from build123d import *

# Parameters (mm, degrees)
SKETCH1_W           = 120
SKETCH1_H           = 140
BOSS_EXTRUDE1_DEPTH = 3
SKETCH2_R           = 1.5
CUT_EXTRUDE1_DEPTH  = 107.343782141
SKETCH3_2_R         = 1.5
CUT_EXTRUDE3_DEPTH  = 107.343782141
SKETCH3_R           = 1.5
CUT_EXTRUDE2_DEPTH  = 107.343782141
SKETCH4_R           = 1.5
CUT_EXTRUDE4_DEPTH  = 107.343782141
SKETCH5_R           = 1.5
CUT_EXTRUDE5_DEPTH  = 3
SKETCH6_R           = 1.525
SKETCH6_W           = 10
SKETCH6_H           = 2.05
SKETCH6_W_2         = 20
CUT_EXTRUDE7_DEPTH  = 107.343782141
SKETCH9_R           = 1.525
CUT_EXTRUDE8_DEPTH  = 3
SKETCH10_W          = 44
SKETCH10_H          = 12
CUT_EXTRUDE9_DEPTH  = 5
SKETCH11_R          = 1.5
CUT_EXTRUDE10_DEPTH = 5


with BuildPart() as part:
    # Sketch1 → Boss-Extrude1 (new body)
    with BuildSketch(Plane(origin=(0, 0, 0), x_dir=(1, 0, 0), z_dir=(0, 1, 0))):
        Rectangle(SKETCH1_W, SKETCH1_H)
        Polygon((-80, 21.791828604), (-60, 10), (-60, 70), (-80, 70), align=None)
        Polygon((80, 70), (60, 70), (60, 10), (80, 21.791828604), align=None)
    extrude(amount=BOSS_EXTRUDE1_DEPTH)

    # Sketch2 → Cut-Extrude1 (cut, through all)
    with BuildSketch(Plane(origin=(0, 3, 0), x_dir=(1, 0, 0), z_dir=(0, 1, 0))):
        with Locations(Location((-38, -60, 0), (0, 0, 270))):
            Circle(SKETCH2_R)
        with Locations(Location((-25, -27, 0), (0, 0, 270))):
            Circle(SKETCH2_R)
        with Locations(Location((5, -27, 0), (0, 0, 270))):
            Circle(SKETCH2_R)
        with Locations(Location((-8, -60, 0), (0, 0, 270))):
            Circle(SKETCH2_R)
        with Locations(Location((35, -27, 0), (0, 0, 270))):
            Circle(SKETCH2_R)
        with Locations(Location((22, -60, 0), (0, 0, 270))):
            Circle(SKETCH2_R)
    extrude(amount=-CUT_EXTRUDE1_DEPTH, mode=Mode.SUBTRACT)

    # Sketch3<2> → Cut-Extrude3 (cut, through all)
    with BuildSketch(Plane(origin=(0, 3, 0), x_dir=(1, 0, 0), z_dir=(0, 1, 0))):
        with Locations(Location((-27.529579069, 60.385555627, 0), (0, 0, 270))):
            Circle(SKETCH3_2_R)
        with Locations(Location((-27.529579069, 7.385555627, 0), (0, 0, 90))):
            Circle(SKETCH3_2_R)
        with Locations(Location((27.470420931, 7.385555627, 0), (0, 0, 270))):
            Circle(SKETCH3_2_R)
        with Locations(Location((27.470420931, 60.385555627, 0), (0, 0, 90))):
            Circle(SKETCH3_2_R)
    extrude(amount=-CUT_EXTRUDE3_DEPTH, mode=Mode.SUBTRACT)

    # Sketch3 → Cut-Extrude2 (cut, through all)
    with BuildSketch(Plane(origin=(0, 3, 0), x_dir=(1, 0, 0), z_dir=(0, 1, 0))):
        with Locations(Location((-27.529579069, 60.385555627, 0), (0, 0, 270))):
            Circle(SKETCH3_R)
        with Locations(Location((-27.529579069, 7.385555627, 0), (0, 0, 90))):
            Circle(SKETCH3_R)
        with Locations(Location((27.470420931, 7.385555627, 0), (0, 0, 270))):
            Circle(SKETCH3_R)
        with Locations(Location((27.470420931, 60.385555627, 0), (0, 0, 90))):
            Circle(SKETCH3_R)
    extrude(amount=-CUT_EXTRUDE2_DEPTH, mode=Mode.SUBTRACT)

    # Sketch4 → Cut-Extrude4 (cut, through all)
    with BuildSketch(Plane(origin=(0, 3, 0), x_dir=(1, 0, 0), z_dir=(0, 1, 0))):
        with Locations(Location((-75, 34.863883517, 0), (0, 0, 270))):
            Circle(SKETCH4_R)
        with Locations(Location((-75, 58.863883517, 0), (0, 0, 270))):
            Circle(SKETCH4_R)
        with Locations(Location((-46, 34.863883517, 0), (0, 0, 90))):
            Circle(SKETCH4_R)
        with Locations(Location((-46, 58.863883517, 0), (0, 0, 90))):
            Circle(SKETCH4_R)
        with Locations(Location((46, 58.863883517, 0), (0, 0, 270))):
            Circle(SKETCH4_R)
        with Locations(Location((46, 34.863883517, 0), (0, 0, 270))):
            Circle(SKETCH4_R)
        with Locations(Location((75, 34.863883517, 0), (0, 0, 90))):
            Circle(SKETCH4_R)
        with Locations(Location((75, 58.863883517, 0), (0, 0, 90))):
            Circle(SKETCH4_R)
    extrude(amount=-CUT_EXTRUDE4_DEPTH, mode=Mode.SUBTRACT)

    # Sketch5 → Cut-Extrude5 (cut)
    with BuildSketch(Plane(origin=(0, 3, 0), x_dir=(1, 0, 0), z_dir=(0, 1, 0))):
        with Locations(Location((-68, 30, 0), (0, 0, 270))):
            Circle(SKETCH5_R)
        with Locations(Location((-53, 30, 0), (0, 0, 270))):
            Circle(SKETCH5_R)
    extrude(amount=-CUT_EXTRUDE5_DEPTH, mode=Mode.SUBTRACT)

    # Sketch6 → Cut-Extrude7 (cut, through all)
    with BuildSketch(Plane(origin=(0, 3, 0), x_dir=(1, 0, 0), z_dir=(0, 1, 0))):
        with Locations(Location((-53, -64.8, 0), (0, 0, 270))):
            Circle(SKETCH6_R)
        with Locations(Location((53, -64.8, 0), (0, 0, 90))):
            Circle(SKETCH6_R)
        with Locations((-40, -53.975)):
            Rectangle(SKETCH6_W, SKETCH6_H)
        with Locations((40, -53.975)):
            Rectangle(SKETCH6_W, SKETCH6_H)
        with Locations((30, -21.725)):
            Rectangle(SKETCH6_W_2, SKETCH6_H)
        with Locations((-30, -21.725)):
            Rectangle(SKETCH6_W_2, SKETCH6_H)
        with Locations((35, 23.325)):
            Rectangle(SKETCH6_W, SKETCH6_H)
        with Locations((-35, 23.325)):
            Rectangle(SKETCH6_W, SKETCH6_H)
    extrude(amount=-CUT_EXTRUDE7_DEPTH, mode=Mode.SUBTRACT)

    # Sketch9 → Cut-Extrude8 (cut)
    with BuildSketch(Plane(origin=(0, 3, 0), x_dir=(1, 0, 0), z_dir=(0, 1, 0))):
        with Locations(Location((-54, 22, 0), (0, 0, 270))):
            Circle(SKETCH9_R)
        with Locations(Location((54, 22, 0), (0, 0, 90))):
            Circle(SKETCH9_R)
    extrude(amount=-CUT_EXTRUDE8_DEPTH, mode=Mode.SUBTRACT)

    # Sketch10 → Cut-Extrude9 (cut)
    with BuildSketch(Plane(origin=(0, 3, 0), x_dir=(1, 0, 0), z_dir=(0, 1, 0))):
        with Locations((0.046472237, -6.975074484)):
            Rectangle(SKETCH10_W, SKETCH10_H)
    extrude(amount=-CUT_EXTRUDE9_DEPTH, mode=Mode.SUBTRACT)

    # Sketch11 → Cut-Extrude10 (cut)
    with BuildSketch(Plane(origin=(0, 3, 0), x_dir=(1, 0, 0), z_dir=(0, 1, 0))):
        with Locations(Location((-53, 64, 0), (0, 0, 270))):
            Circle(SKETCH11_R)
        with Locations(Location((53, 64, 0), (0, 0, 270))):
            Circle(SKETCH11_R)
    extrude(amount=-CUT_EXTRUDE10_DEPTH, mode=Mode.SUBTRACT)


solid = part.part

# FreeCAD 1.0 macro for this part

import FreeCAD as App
import Part
import Sketcher
Q = App.Units.Quantity

doc = App.newDocument("Part")
body = doc.addObject("PartDesign::Body", "Body")

sketch1 = doc.addObject("Sketcher::SketchObject", "Sketch")
body.addObject(sketch1)
sketch1.AttachmentSupport = (doc.XZ_Plane, [""])
sketch1.MapMode = "FlatFace"
sketch1.addGeometry([
    Part.LineSegment(App.Vector(-60, -10, 0), App.Vector(-60, 70, 0)),
    Part.LineSegment(App.Vector(-60, 70, 0), App.Vector(60, 70, 0)),
    Part.LineSegment(App.Vector(60, 70, 0), App.Vector(60, -10, 0)),
    Part.LineSegment(App.Vector(60, -10, 0), App.Vector(80, -22, 0)),
    Part.LineSegment(App.Vector(80, -22, 0), App.Vector(80, -70, 0)),
    Part.LineSegment(App.Vector(80, -70, 0), App.Vector(-80, -70, 0)),
    Part.LineSegment(App.Vector(-80, -70, 0), App.Vector(-80, -22, 0)),
    Part.LineSegment(App.Vector(-80, -22, 0), App.Vector(-60, -10, 0)),
], False)
sketch1.addConstraint([
    Sketcher.Constraint("Coincident", 0, 2, 1, 1),
    Sketcher.Constraint("Coincident", 1, 2, 2, 1),
    Sketcher.Constraint("Coincident", 2, 2, 3, 1),
    Sketcher.Constraint("Coincident", 3, 2, 4, 1),
    Sketcher.Constraint("Coincident", 4, 2, 5, 1),
    Sketcher.Constraint("Coincident", 5, 2, 6, 1),
    Sketcher.Constraint("Coincident", 6, 2, 7, 1),
    Sketcher.Constraint("Coincident", 7, 2, 0, 1),
    Sketcher.Constraint("Vertical", 0),
    Sketcher.Constraint("Horizontal", 1),
    Sketcher.Constraint("Vertical", 2),
    Sketcher.Constraint("Vertical", 4),
    Sketcher.Constraint("Horizontal", 5),
    Sketcher.Constraint("Vertical", 6),
    Sketcher.Constraint("Symmetric", 3, 2, 6, 2, -2),
    Sketcher.Constraint("Symmetric", 2, 2, 7, 2, -2),
    Sketcher.Constraint("DistanceX", 1, 1, 1, 2, Q("120 mm")),
    Sketcher.Constraint("DistanceX", 5, 2, 5, 1, Q("160 mm")),
    Sketcher.Constraint("DistanceY", 0, 1, 0, 2, Q("80 mm")),
    Sketcher.Constraint("DistanceY", -1, 1, 0, 2, Q("70 mm")),
    Sketcher.Constraint("DistanceY", 4, 2, -1, 1, Q("70 mm")),
    Sketcher.Constraint("DistanceY", 4, 2, 4, 1, Q("48.208171 mm")),
])
pad1 = doc.addObject("PartDesign::Pad", "Pad")
body.addObject(pad1)
pad1.Profile = sketch1
pad1.Length = 3
pad1.Reversed = True

sketch2 = doc.addObject("Sketcher::SketchObject", "Sketch001")
body.addObject(sketch2)
sketch2.AttachmentSupport = (doc.XZ_Plane, [""])
sketch2.MapMode = "FlatFace"
sketch2.AttachmentOffset = App.Placement(App.Vector(0, 0, -3), App.Rotation())
sketch2.addGeometry([
    Part.Circle(App.Vector(-38, 60, 0), App.Vector(0, 0, 1), 1.5),
    Part.Circle(App.Vector(-25, 27, 0), App.Vector(0, 0, 1), 1.5),
    Part.Circle(App.Vector(5, 27, 0), App.Vector(0, 0, 1), 1.5),
    Part.Circle(App.Vector(-8, 60, 0), App.Vector(0, 0, 1), 1.5),
    Part.Circle(App.Vector(35, 27, 0), App.Vector(0, 0, 1), 1.5),
    Part.Circle(App.Vector(22, 60, 0), App.Vector(0, 0, 1), 1.5),
], False)
sketch2.addConstraint([
    Sketcher.Constraint("Equal", 0, 1),
    Sketcher.Constraint("Equal", 1, 2),
    Sketcher.Constraint("Equal", 2, 3),
    Sketcher.Constraint("Equal", 3, 4),
    Sketcher.Constraint("Equal", 4, 5),
    Sketcher.Constraint("Horizontal", 1, 3, 2, 3),
    Sketcher.Constraint("Horizontal", 0, 3, 3, 3),
    Sketcher.Constraint("Horizontal", 2, 3, 4, 3),
    Sketcher.Constraint("Horizontal", 3, 3, 5, 3),
    Sketcher.Constraint("Diameter", 0, Q("3 mm")),
    Sketcher.Constraint("DistanceX", 0, 3, -1, 1, Q("38 mm")),
    Sketcher.Constraint("DistanceY", -1, 1, 0, 3, Q("60 mm")),
    Sketcher.Constraint("DistanceX", 1, 3, -1, 1, Q("25 mm")),
    Sketcher.Constraint("DistanceY", -1, 1, 1, 3, Q("27 mm")),
    Sketcher.Constraint("DistanceX", -1, 1, 2, 3, Q("5 mm")),
    Sketcher.Constraint("DistanceX", 3, 3, -1, 1, Q("8 mm")),
    Sketcher.Constraint("DistanceX", -1, 1, 4, 3, Q("35 mm")),
    Sketcher.Constraint("DistanceX", -1, 1, 5, 3, Q("22 mm")),
])
pocket1 = doc.addObject("PartDesign::Pocket", "Pocket")
body.addObject(pocket1)
pocket1.Profile = sketch2
pocket1.Type = "ThroughAll"
pocket1.Reversed = True

sketch3 = doc.addObject("Sketcher::SketchObject", "Sketch002")
body.addObject(sketch3)
sketch3.AttachmentSupport = (doc.XZ_Plane, [""])
sketch3.MapMode = "FlatFace"
sketch3.AttachmentOffset = App.Placement(App.Vector(0, 0, -3), App.Rotation())
sketch3.addGeometry([
    Part.Circle(App.Vector(-27.5, -60.4, 0), App.Vector(0, 0, 1), 1.5),
    Part.Circle(App.Vector(-27.5, -7.4, 0), App.Vector(0, 0, 1), 1.5),
    Part.Circle(App.Vector(27.5, -7.4, 0), App.Vector(0, 0, 1), 1.5),
    Part.Circle(App.Vector(27.5, -60.4, 0), App.Vector(0, 0, 1), 1.5),
], False)
sketch3.addConstraint([
    Sketcher.Constraint("Equal", 0, 1),
    Sketcher.Constraint("Equal", 1, 2),
    Sketcher.Constraint("Equal", 2, 3),
    Sketcher.Constraint("Horizontal", 1, 3, 2, 3),
    Sketcher.Constraint("Horizontal", 0, 3, 3, 3),
    Sketcher.Constraint("Vertical", 0, 3, 1, 3),
    Sketcher.Constraint("Vertical", 2, 3, 3, 3),
    Sketcher.Constraint("Diameter", 0, Q("3 mm")),
    Sketcher.Constraint("DistanceY", 0, 3, 1, 3, Q("53 mm")),
    Sketcher.Constraint("DistanceX", 1, 3, 2, 3, Q("55 mm")),
    Sketcher.Constraint("DistanceX", 0, 3, -1, 1, Q("27.529579 mm")),
    Sketcher.Constraint("DistanceY", 0, 3, -1, 1, Q("60.385556 mm")),
])
pocket2 = doc.addObject("PartDesign::Pocket", "Pocket001")
body.addObject(pocket2)
pocket2.Profile = sketch3
pocket2.Type = "ThroughAll"
pocket2.Reversed = True

sketch4 = doc.addObject("Sketcher::SketchObject", "Sketch003")
body.addObject(sketch4)
sketch4.AttachmentSupport = (doc.XZ_Plane, [""])
sketch4.MapMode = "FlatFace"
sketch4.AttachmentOffset = App.Placement(App.Vector(0, 0, -3), App.Rotation())
sketch4.addGeometry([
    Part.Circle(App.Vector(-27.5, -60.4, 0), App.Vector(0, 0, 1), 1.5),
    Part.Circle(App.Vector(-27.5, -7.4, 0), App.Vector(0, 0, 1), 1.5),
    Part.Circle(App.Vector(27.5, -7.4, 0), App.Vector(0, 0, 1), 1.5),
    Part.Circle(App.Vector(27.5, -60.4, 0), App.Vector(0, 0, 1), 1.5),
], False)
sketch4.addConstraint([
    Sketcher.Constraint("Equal", 0, 1),
    Sketcher.Constraint("Equal", 1, 2),
    Sketcher.Constraint("Equal", 2, 3),
    Sketcher.Constraint("Horizontal", 1, 3, 2, 3),
    Sketcher.Constraint("Horizontal", 0, 3, 3, 3),
    Sketcher.Constraint("Vertical", 0, 3, 1, 3),
    Sketcher.Constraint("Vertical", 2, 3, 3, 3),
    Sketcher.Constraint("Diameter", 0, Q("3 mm")),
    Sketcher.Constraint("DistanceY", 0, 3, 1, 3, Q("53 mm")),
    Sketcher.Constraint("DistanceX", 1, 3, 2, 3, Q("55 mm")),
    Sketcher.Constraint("DistanceX", 0, 3, -1, 1, Q("27.529579 mm")),
    Sketcher.Constraint("DistanceY", 0, 3, -1, 1, Q("60.385556 mm")),
])
pocket3 = doc.addObject("PartDesign::Pocket", "Pocket002")
body.addObject(pocket3)
pocket3.Profile = sketch4
pocket3.Type = "ThroughAll"
pocket3.Reversed = True

sketch5 = doc.addObject("Sketcher::SketchObject", "Sketch004")
body.addObject(sketch5)
sketch5.AttachmentSupport = (doc.XZ_Plane, [""])
sketch5.MapMode = "FlatFace"
sketch5.AttachmentOffset = App.Placement(App.Vector(0, 0, -3), App.Rotation())
sketch5.addGeometry([
    Part.Circle(App.Vector(-75, -34.9, 0), App.Vector(0, 0, 1), 1.5),
    Part.Circle(App.Vector(-75, -58.9, 0), App.Vector(0, 0, 1), 1.5),
    Part.Circle(App.Vector(-46, -34.9, 0), App.Vector(0, 0, 1), 1.5),
    Part.Circle(App.Vector(-46, -58.9, 0), App.Vector(0, 0, 1), 1.5),
    Part.Circle(App.Vector(46, -58.9, 0), App.Vector(0, 0, 1), 1.5),
    Part.Circle(App.Vector(46, -34.9, 0), App.Vector(0, 0, 1), 1.5),
    Part.Circle(App.Vector(75, -34.9, 0), App.Vector(0, 0, 1), 1.5),
    Part.Circle(App.Vector(75, -58.9, 0), App.Vector(0, 0, 1), 1.5),
], False)
sketch5.addConstraint([
    Sketcher.Constraint("Equal", 0, 1),
    Sketcher.Constraint("Equal", 1, 2),
    Sketcher.Constraint("Equal", 2, 3),
    Sketcher.Constraint("Equal", 3, 4),
    Sketcher.Constraint("Equal", 4, 5),
    Sketcher.Constraint("Equal", 5, 6),
    Sketcher.Constraint("Equal", 6, 7),
    Sketcher.Constraint("Symmetric", 3, 3, 4, 3, -2),
    Sketcher.Constraint("Symmetric", 2, 3, 5, 3, -2),
    Sketcher.Constraint("Symmetric", 0, 3, 6, 3, -2),
    Sketcher.Constraint("Symmetric", 1, 3, 7, 3, -2),
    Sketcher.Constraint("Horizontal", 0, 3, 2, 3),
    Sketcher.Constraint("Horizontal", 1, 3, 3, 3),
    Sketcher.Constraint("Vertical", 0, 3, 1, 3),
    Sketcher.Constraint("Vertical", 2, 3, 3, 3),
    Sketcher.Constraint("Diameter", 0, Q("3 mm")),
    Sketcher.Constraint("DistanceX", 0, 3, -1, 1, Q("75 mm")),
    Sketcher.Constraint("DistanceX", 2, 3, -1, 1, Q("46 mm")),
    Sketcher.Constraint("DistanceY", 1, 3, 0, 3, Q("24 mm")),
    Sketcher.Constraint("DistanceY", 0, 3, -1, 1, Q("34.863884 mm")),
])
pocket4 = doc.addObject("PartDesign::Pocket", "Pocket003")
body.addObject(pocket4)
pocket4.Profile = sketch5
pocket4.Type = "ThroughAll"
pocket4.Reversed = True

sketch6 = doc.addObject("Sketcher::SketchObject", "Sketch005")
body.addObject(sketch6)
sketch6.AttachmentSupport = (doc.XZ_Plane, [""])
sketch6.MapMode = "FlatFace"
sketch6.AttachmentOffset = App.Placement(App.Vector(0, 0, -3), App.Rotation())
sketch6.addGeometry([
    Part.Circle(App.Vector(-68, -30, 0), App.Vector(0, 0, 1), 1.5),
    Part.Circle(App.Vector(-53, -30, 0), App.Vector(0, 0, 1), 1.5),
], False)
sketch6.addConstraint([
    Sketcher.Constraint("Equal", 0, 1),
    Sketcher.Constraint("Horizontal", 0, 3, 1, 3),
    Sketcher.Constraint("Diameter", 0, Q("3 mm")),
    Sketcher.Constraint("DistanceX", 0, 3, -1, 1, Q("68 mm")),
    Sketcher.Constraint("DistanceY", 0, 3, -1, 1, Q("30 mm")),
    Sketcher.Constraint("DistanceX", 1, 3, -1, 1, Q("53 mm")),
])
pocket5 = doc.addObject("PartDesign::Pocket", "Pocket004")
body.addObject(pocket5)
pocket5.Profile = sketch6
pocket5.Length = 3
pocket5.Reversed = True

sketch7 = doc.addObject("Sketcher::SketchObject", "Sketch006")
body.addObject(sketch7)
sketch7.AttachmentSupport = (doc.XZ_Plane, [""])
sketch7.MapMode = "FlatFace"
sketch7.AttachmentOffset = App.Placement(App.Vector(0, 0, -3), App.Rotation())
sketch7.addGeometry([
    Part.Circle(App.Vector(-53, 64.8, 0), App.Vector(0, 0, 1), 1.5),
    Part.Circle(App.Vector(53, 64.8, 0), App.Vector(0, 0, 1), 1.5),
    Part.LineSegment(App.Vector(-45, 53, 0), App.Vector(-45, 55, 0)),
    Part.LineSegment(App.Vector(-45, 55, 0), App.Vector(-35, 55, 0)),
    Part.LineSegment(App.Vector(-35, 55, 0), App.Vector(-35, 53, 0)),
    Part.LineSegment(App.Vector(-35, 53, 0), App.Vector(-45, 53, 0)),
    Part.LineSegment(App.Vector(35, 53, 0), App.Vector(35, 55, 0)),
    Part.LineSegment(App.Vector(35, 55, 0), App.Vector(45, 55, 0)),
    Part.LineSegment(App.Vector(45, 55, 0), App.Vector(45, 53, 0)),
    Part.LineSegment(App.Vector(45, 53, 0), App.Vector(35, 53, 0)),
    Part.LineSegment(App.Vector(20, 20.7, 0), App.Vector(20, 22.8, 0)),
    Part.LineSegment(App.Vector(20, 22.8, 0), App.Vector(40, 22.8, 0)),
    Part.LineSegment(App.Vector(40, 22.8, 0), App.Vector(40, 20.7, 0)),
    Part.LineSegment(App.Vector(40, 20.7, 0), App.Vector(20, 20.7, 0)),
    Part.LineSegment(App.Vector(-40, 20.7, 0), App.Vector(-40, 22.8, 0)),
    Part.LineSegment(App.Vector(-40, 22.8, 0), App.Vector(-20, 22.8, 0)),
    Part.LineSegment(App.Vector(-20, 22.8, 0), App.Vector(-20, 20.7, 0)),
    Part.LineSegment(App.Vector(-20, 20.7, 0), App.Vector(-40, 20.7, 0)),
    Part.LineSegment(App.Vector(30, -24.4, 0), App.Vector(30, -22.3, 0)),
    Part.LineSegment(App.Vector(30, -22.3, 0), App.Vector(40, -22.3, 0)),
    Part.LineSegment(App.Vector(40, -22.3, 0), App.Vector(40, -24.4, 0)),
    Part.LineSegment(App.Vector(40, -24.4, 0), App.Vector(30, -24.4, 0)),
    Part.LineSegment(App.Vector(-40, -24.4, 0), App.Vector(-40, -22.3, 0)),
    Part.LineSegment(App.Vector(-40, -22.3, 0), App.Vector(-30, -22.3, 0)),
    Part.LineSegment(App.Vector(-30, -22.3, 0), App.Vector(-30, -24.4, 0)),
    Part.LineSegment(App.Vector(-30, -24.4, 0), App.Vector(-40, -24.4, 0)),
], False)
sketch7.addConstraint([
    Sketcher.Constraint("Coincident", 2, 2, 3, 1),
    Sketcher.Constraint("Coincident", 3, 2, 4, 1),
    Sketcher.Constraint("Coincident", 4, 2, 5, 1),
    Sketcher.Constraint("Coincident", 5, 2, 2, 1),
    Sketcher.Constraint("Coincident", 6, 2, 7, 1),
    Sketcher.Constraint("Coincident", 7, 2, 8, 1),
    Sketcher.Constraint("Coincident", 8, 2, 9, 1),
    Sketcher.Constraint("Coincident", 9, 2, 6, 1),
    Sketcher.Constraint("Coincident", 10, 2, 11, 1),
    Sketcher.Constraint("Coincident", 11, 2, 12, 1),
    Sketcher.Constraint("Coincident", 12, 2, 13, 1),
    Sketcher.Constraint("Coincident", 13, 2, 10, 1),
    Sketcher.Constraint("Coincident", 14, 2, 15, 1),
    Sketcher.Constraint("Coincident", 15, 2, 16, 1),
    Sketcher.Constraint("Coincident", 16, 2, 17, 1),
    Sketcher.Constraint("Coincident", 17, 2, 14, 1),
    Sketcher.Constraint("Coincident", 18, 2, 19, 1),
    Sketcher.Constraint("Coincident", 19, 2, 20, 1),
    Sketcher.Constraint("Coincident", 20, 2, 21, 1),
    Sketcher.Constraint("Coincident", 21, 2, 18, 1),
    Sketcher.Constraint("Coincident", 22, 2, 23, 1),
    Sketcher.Constraint("Coincident", 23, 2, 24, 1),
    Sketcher.Constraint("Coincident", 24, 2, 25, 1),
    Sketcher.Constraint("Coincident", 25, 2, 22, 1),
    Sketcher.Constraint("Vertical", 2),
    Sketcher.Constraint("Horizontal", 3),
    Sketcher.Constraint("Vertical", 4),
    Sketcher.Constraint("Horizontal", 5),
    Sketcher.Constraint("Vertical", 6),
    Sketcher.Constraint("Horizontal", 7),
    Sketcher.Constraint("Vertical", 8),
    Sketcher.Constraint("Horizontal", 9),
    Sketcher.Constraint("Vertical", 10),
    Sketcher.Constraint("Horizontal", 11),
    Sketcher.Constraint("Vertical", 12),
    Sketcher.Constraint("Horizontal", 13),
    Sketcher.Constraint("Vertical", 14),
    Sketcher.Constraint("Horizontal", 15),
    Sketcher.Constraint("Vertical", 16),
    Sketcher.Constraint("Horizontal", 17),
    Sketcher.Constraint("Vertical", 18),
    Sketcher.Constraint("Horizontal", 19),
    Sketcher.Constraint("Vertical", 20),
    Sketcher.Constraint("Horizontal", 21),
    Sketcher.Constraint("Vertical", 22),
    Sketcher.Constraint("Horizontal", 23),
    Sketcher.Constraint("Vertical", 24),
    Sketcher.Constraint("Horizontal", 25),
    Sketcher.Constraint("Equal", 0, 1),
    Sketcher.Constraint("Symmetric", 0, 3, 1, 3, -2),
    Sketcher.Constraint("Symmetric", 3, 2, 6, 2, -2),
    Sketcher.Constraint("Symmetric", 5, 2, 8, 2, -2),
    Sketcher.Constraint("Symmetric", 11, 2, 14, 2, -2),
    Sketcher.Constraint("Symmetric", 13, 2, 16, 2, -2),
    Sketcher.Constraint("Symmetric", 19, 2, 22, 2, -2),
    Sketcher.Constraint("Symmetric", 21, 2, 24, 2, -2),
    Sketcher.Constraint("Vertical", 12, 2, 19, 2),
    Sketcher.Constraint("Equal", 9, 19),
    Sketcher.Constraint("Equal", 8, 10),
    Sketcher.Constraint("Equal", 16, 18),
    Sketcher.Constraint("Diameter", 0, Q("3.05 mm")),
    Sketcher.Constraint("DistanceX", 3, 1, 3, 2, Q("10 mm")),
    Sketcher.Constraint("DistanceX", 11, 1, 11, 2, Q("20 mm")),
    Sketcher.Constraint("DistanceX", 0, 3, -1, 1, Q("53 mm")),
    Sketcher.Constraint("DistanceX", 2, 2, -1, 1, Q("45 mm")),
    Sketcher.Constraint("DistanceY", -1, 1, 2, 2, Q("55 mm")),
    Sketcher.Constraint("DistanceX", -1, 1, 10, 2, Q("20 mm")),
    Sketcher.Constraint("DistanceY", 18, 2, 12, 2, Q("43 mm")),
    Sketcher.Constraint("DistanceY", 2, 1, 2, 2, Q("2.05 mm")),
    Sketcher.Constraint("DistanceY", -1, 1, 0, 3, Q("64.8 mm")),
    Sketcher.Constraint("DistanceY", -1, 1, 12, 2, Q("20.7 mm")),
])
pocket6 = doc.addObject("PartDesign::Pocket", "Pocket005")
body.addObject(pocket6)
pocket6.Profile = sketch7
pocket6.Type = "ThroughAll"
pocket6.Reversed = True

sketch8 = doc.addObject("Sketcher::SketchObject", "Sketch007")
body.addObject(sketch8)
sketch8.AttachmentSupport = (doc.XZ_Plane, [""])
sketch8.MapMode = "FlatFace"
sketch8.AttachmentOffset = App.Placement(App.Vector(0, 0, -3), App.Rotation())
sketch8.addGeometry([
    Part.Circle(App.Vector(-54, -22, 0), App.Vector(0, 0, 1), 1.5),
    Part.Circle(App.Vector(54, -22, 0), App.Vector(0, 0, 1), 1.5),
], False)
sketch8.addConstraint([
    Sketcher.Constraint("Equal", 0, 1),
    Sketcher.Constraint("Symmetric", 0, 3, 1, 3, -2),
    Sketcher.Constraint("Diameter", 0, Q("3.05 mm")),
    Sketcher.Constraint("DistanceX", 0, 3, -1, 1, Q("54 mm")),
    Sketcher.Constraint("DistanceY", 0, 3, -1, 1, Q("22 mm")),
])
pocket7 = doc.addObject("PartDesign::Pocket", "Pocket006")
body.addObject(pocket7)
pocket7.Profile = sketch8
pocket7.Length = 3
pocket7.Reversed = True

sketch9 = doc.addObject("Sketcher::SketchObject", "Sketch008")
body.addObject(sketch9)
sketch9.AttachmentSupport = (doc.XZ_Plane, [""])
sketch9.MapMode = "FlatFace"
sketch9.AttachmentOffset = App.Placement(App.Vector(0, 0, -3), App.Rotation())
sketch9.addGeometry([
    Part.LineSegment(App.Vector(-22, 1, 0), App.Vector(-22, 13, 0)),
    Part.LineSegment(App.Vector(-22, 13, 0), App.Vector(22, 13, 0)),
    Part.LineSegment(App.Vector(22, 13, 0), App.Vector(22, 1, 0)),
    Part.LineSegment(App.Vector(22, 1, 0), App.Vector(-22, 1, 0)),
], False)
sketch9.addConstraint([
    Sketcher.Constraint("Coincident", 0, 2, 1, 1),
    Sketcher.Constraint("Coincident", 1, 2, 2, 1),
    Sketcher.Constraint("Coincident", 2, 2, 3, 1),
    Sketcher.Constraint("Coincident", 3, 2, 0, 1),
    Sketcher.Constraint("Vertical", 0),
    Sketcher.Constraint("Horizontal", 1),
    Sketcher.Constraint("Vertical", 2),
    Sketcher.Constraint("Horizontal", 3),
    Sketcher.Constraint("DistanceX", 1, 1, 1, 2, Q("44 mm")),
    Sketcher.Constraint("DistanceY", 0, 1, 0, 2, Q("12 mm")),
    Sketcher.Constraint("DistanceX", 0, 2, -1, 1, Q("21.953528 mm")),
    Sketcher.Constraint("DistanceY", -1, 1, 0, 2, Q("12.975074 mm")),
])
pocket8 = doc.addObject("PartDesign::Pocket", "Pocket007")
body.addObject(pocket8)
pocket8.Profile = sketch9
pocket8.Length = 5
pocket8.Reversed = True

sketch10 = doc.addObject("Sketcher::SketchObject", "Sketch009")
body.addObject(sketch10)
sketch10.AttachmentSupport = (doc.XZ_Plane, [""])
sketch10.MapMode = "FlatFace"
sketch10.AttachmentOffset = App.Placement(App.Vector(0, 0, -3), App.Rotation())
sketch10.addGeometry([
    Part.Circle(App.Vector(-53, -64, 0), App.Vector(0, 0, 1), 1.5),
    Part.Circle(App.Vector(53, -64, 0), App.Vector(0, 0, 1), 1.5),
], False)
sketch10.addConstraint([
    Sketcher.Constraint("Equal", 0, 1),
    Sketcher.Constraint("Symmetric", 0, 3, 1, 3, -2),
    Sketcher.Constraint("Diameter", 0, Q("3 mm")),
    Sketcher.Constraint("DistanceX", 0, 3, -1, 1, Q("53 mm")),
    Sketcher.Constraint("DistanceY", 0, 3, -1, 1, Q("64 mm")),
])
pocket9 = doc.addObject("PartDesign::Pocket", "Pocket008")
body.addObject(pocket9)
pocket9.Profile = sketch10
pocket9.Length = 5
pocket9.Reversed = True

doc.recompute()
